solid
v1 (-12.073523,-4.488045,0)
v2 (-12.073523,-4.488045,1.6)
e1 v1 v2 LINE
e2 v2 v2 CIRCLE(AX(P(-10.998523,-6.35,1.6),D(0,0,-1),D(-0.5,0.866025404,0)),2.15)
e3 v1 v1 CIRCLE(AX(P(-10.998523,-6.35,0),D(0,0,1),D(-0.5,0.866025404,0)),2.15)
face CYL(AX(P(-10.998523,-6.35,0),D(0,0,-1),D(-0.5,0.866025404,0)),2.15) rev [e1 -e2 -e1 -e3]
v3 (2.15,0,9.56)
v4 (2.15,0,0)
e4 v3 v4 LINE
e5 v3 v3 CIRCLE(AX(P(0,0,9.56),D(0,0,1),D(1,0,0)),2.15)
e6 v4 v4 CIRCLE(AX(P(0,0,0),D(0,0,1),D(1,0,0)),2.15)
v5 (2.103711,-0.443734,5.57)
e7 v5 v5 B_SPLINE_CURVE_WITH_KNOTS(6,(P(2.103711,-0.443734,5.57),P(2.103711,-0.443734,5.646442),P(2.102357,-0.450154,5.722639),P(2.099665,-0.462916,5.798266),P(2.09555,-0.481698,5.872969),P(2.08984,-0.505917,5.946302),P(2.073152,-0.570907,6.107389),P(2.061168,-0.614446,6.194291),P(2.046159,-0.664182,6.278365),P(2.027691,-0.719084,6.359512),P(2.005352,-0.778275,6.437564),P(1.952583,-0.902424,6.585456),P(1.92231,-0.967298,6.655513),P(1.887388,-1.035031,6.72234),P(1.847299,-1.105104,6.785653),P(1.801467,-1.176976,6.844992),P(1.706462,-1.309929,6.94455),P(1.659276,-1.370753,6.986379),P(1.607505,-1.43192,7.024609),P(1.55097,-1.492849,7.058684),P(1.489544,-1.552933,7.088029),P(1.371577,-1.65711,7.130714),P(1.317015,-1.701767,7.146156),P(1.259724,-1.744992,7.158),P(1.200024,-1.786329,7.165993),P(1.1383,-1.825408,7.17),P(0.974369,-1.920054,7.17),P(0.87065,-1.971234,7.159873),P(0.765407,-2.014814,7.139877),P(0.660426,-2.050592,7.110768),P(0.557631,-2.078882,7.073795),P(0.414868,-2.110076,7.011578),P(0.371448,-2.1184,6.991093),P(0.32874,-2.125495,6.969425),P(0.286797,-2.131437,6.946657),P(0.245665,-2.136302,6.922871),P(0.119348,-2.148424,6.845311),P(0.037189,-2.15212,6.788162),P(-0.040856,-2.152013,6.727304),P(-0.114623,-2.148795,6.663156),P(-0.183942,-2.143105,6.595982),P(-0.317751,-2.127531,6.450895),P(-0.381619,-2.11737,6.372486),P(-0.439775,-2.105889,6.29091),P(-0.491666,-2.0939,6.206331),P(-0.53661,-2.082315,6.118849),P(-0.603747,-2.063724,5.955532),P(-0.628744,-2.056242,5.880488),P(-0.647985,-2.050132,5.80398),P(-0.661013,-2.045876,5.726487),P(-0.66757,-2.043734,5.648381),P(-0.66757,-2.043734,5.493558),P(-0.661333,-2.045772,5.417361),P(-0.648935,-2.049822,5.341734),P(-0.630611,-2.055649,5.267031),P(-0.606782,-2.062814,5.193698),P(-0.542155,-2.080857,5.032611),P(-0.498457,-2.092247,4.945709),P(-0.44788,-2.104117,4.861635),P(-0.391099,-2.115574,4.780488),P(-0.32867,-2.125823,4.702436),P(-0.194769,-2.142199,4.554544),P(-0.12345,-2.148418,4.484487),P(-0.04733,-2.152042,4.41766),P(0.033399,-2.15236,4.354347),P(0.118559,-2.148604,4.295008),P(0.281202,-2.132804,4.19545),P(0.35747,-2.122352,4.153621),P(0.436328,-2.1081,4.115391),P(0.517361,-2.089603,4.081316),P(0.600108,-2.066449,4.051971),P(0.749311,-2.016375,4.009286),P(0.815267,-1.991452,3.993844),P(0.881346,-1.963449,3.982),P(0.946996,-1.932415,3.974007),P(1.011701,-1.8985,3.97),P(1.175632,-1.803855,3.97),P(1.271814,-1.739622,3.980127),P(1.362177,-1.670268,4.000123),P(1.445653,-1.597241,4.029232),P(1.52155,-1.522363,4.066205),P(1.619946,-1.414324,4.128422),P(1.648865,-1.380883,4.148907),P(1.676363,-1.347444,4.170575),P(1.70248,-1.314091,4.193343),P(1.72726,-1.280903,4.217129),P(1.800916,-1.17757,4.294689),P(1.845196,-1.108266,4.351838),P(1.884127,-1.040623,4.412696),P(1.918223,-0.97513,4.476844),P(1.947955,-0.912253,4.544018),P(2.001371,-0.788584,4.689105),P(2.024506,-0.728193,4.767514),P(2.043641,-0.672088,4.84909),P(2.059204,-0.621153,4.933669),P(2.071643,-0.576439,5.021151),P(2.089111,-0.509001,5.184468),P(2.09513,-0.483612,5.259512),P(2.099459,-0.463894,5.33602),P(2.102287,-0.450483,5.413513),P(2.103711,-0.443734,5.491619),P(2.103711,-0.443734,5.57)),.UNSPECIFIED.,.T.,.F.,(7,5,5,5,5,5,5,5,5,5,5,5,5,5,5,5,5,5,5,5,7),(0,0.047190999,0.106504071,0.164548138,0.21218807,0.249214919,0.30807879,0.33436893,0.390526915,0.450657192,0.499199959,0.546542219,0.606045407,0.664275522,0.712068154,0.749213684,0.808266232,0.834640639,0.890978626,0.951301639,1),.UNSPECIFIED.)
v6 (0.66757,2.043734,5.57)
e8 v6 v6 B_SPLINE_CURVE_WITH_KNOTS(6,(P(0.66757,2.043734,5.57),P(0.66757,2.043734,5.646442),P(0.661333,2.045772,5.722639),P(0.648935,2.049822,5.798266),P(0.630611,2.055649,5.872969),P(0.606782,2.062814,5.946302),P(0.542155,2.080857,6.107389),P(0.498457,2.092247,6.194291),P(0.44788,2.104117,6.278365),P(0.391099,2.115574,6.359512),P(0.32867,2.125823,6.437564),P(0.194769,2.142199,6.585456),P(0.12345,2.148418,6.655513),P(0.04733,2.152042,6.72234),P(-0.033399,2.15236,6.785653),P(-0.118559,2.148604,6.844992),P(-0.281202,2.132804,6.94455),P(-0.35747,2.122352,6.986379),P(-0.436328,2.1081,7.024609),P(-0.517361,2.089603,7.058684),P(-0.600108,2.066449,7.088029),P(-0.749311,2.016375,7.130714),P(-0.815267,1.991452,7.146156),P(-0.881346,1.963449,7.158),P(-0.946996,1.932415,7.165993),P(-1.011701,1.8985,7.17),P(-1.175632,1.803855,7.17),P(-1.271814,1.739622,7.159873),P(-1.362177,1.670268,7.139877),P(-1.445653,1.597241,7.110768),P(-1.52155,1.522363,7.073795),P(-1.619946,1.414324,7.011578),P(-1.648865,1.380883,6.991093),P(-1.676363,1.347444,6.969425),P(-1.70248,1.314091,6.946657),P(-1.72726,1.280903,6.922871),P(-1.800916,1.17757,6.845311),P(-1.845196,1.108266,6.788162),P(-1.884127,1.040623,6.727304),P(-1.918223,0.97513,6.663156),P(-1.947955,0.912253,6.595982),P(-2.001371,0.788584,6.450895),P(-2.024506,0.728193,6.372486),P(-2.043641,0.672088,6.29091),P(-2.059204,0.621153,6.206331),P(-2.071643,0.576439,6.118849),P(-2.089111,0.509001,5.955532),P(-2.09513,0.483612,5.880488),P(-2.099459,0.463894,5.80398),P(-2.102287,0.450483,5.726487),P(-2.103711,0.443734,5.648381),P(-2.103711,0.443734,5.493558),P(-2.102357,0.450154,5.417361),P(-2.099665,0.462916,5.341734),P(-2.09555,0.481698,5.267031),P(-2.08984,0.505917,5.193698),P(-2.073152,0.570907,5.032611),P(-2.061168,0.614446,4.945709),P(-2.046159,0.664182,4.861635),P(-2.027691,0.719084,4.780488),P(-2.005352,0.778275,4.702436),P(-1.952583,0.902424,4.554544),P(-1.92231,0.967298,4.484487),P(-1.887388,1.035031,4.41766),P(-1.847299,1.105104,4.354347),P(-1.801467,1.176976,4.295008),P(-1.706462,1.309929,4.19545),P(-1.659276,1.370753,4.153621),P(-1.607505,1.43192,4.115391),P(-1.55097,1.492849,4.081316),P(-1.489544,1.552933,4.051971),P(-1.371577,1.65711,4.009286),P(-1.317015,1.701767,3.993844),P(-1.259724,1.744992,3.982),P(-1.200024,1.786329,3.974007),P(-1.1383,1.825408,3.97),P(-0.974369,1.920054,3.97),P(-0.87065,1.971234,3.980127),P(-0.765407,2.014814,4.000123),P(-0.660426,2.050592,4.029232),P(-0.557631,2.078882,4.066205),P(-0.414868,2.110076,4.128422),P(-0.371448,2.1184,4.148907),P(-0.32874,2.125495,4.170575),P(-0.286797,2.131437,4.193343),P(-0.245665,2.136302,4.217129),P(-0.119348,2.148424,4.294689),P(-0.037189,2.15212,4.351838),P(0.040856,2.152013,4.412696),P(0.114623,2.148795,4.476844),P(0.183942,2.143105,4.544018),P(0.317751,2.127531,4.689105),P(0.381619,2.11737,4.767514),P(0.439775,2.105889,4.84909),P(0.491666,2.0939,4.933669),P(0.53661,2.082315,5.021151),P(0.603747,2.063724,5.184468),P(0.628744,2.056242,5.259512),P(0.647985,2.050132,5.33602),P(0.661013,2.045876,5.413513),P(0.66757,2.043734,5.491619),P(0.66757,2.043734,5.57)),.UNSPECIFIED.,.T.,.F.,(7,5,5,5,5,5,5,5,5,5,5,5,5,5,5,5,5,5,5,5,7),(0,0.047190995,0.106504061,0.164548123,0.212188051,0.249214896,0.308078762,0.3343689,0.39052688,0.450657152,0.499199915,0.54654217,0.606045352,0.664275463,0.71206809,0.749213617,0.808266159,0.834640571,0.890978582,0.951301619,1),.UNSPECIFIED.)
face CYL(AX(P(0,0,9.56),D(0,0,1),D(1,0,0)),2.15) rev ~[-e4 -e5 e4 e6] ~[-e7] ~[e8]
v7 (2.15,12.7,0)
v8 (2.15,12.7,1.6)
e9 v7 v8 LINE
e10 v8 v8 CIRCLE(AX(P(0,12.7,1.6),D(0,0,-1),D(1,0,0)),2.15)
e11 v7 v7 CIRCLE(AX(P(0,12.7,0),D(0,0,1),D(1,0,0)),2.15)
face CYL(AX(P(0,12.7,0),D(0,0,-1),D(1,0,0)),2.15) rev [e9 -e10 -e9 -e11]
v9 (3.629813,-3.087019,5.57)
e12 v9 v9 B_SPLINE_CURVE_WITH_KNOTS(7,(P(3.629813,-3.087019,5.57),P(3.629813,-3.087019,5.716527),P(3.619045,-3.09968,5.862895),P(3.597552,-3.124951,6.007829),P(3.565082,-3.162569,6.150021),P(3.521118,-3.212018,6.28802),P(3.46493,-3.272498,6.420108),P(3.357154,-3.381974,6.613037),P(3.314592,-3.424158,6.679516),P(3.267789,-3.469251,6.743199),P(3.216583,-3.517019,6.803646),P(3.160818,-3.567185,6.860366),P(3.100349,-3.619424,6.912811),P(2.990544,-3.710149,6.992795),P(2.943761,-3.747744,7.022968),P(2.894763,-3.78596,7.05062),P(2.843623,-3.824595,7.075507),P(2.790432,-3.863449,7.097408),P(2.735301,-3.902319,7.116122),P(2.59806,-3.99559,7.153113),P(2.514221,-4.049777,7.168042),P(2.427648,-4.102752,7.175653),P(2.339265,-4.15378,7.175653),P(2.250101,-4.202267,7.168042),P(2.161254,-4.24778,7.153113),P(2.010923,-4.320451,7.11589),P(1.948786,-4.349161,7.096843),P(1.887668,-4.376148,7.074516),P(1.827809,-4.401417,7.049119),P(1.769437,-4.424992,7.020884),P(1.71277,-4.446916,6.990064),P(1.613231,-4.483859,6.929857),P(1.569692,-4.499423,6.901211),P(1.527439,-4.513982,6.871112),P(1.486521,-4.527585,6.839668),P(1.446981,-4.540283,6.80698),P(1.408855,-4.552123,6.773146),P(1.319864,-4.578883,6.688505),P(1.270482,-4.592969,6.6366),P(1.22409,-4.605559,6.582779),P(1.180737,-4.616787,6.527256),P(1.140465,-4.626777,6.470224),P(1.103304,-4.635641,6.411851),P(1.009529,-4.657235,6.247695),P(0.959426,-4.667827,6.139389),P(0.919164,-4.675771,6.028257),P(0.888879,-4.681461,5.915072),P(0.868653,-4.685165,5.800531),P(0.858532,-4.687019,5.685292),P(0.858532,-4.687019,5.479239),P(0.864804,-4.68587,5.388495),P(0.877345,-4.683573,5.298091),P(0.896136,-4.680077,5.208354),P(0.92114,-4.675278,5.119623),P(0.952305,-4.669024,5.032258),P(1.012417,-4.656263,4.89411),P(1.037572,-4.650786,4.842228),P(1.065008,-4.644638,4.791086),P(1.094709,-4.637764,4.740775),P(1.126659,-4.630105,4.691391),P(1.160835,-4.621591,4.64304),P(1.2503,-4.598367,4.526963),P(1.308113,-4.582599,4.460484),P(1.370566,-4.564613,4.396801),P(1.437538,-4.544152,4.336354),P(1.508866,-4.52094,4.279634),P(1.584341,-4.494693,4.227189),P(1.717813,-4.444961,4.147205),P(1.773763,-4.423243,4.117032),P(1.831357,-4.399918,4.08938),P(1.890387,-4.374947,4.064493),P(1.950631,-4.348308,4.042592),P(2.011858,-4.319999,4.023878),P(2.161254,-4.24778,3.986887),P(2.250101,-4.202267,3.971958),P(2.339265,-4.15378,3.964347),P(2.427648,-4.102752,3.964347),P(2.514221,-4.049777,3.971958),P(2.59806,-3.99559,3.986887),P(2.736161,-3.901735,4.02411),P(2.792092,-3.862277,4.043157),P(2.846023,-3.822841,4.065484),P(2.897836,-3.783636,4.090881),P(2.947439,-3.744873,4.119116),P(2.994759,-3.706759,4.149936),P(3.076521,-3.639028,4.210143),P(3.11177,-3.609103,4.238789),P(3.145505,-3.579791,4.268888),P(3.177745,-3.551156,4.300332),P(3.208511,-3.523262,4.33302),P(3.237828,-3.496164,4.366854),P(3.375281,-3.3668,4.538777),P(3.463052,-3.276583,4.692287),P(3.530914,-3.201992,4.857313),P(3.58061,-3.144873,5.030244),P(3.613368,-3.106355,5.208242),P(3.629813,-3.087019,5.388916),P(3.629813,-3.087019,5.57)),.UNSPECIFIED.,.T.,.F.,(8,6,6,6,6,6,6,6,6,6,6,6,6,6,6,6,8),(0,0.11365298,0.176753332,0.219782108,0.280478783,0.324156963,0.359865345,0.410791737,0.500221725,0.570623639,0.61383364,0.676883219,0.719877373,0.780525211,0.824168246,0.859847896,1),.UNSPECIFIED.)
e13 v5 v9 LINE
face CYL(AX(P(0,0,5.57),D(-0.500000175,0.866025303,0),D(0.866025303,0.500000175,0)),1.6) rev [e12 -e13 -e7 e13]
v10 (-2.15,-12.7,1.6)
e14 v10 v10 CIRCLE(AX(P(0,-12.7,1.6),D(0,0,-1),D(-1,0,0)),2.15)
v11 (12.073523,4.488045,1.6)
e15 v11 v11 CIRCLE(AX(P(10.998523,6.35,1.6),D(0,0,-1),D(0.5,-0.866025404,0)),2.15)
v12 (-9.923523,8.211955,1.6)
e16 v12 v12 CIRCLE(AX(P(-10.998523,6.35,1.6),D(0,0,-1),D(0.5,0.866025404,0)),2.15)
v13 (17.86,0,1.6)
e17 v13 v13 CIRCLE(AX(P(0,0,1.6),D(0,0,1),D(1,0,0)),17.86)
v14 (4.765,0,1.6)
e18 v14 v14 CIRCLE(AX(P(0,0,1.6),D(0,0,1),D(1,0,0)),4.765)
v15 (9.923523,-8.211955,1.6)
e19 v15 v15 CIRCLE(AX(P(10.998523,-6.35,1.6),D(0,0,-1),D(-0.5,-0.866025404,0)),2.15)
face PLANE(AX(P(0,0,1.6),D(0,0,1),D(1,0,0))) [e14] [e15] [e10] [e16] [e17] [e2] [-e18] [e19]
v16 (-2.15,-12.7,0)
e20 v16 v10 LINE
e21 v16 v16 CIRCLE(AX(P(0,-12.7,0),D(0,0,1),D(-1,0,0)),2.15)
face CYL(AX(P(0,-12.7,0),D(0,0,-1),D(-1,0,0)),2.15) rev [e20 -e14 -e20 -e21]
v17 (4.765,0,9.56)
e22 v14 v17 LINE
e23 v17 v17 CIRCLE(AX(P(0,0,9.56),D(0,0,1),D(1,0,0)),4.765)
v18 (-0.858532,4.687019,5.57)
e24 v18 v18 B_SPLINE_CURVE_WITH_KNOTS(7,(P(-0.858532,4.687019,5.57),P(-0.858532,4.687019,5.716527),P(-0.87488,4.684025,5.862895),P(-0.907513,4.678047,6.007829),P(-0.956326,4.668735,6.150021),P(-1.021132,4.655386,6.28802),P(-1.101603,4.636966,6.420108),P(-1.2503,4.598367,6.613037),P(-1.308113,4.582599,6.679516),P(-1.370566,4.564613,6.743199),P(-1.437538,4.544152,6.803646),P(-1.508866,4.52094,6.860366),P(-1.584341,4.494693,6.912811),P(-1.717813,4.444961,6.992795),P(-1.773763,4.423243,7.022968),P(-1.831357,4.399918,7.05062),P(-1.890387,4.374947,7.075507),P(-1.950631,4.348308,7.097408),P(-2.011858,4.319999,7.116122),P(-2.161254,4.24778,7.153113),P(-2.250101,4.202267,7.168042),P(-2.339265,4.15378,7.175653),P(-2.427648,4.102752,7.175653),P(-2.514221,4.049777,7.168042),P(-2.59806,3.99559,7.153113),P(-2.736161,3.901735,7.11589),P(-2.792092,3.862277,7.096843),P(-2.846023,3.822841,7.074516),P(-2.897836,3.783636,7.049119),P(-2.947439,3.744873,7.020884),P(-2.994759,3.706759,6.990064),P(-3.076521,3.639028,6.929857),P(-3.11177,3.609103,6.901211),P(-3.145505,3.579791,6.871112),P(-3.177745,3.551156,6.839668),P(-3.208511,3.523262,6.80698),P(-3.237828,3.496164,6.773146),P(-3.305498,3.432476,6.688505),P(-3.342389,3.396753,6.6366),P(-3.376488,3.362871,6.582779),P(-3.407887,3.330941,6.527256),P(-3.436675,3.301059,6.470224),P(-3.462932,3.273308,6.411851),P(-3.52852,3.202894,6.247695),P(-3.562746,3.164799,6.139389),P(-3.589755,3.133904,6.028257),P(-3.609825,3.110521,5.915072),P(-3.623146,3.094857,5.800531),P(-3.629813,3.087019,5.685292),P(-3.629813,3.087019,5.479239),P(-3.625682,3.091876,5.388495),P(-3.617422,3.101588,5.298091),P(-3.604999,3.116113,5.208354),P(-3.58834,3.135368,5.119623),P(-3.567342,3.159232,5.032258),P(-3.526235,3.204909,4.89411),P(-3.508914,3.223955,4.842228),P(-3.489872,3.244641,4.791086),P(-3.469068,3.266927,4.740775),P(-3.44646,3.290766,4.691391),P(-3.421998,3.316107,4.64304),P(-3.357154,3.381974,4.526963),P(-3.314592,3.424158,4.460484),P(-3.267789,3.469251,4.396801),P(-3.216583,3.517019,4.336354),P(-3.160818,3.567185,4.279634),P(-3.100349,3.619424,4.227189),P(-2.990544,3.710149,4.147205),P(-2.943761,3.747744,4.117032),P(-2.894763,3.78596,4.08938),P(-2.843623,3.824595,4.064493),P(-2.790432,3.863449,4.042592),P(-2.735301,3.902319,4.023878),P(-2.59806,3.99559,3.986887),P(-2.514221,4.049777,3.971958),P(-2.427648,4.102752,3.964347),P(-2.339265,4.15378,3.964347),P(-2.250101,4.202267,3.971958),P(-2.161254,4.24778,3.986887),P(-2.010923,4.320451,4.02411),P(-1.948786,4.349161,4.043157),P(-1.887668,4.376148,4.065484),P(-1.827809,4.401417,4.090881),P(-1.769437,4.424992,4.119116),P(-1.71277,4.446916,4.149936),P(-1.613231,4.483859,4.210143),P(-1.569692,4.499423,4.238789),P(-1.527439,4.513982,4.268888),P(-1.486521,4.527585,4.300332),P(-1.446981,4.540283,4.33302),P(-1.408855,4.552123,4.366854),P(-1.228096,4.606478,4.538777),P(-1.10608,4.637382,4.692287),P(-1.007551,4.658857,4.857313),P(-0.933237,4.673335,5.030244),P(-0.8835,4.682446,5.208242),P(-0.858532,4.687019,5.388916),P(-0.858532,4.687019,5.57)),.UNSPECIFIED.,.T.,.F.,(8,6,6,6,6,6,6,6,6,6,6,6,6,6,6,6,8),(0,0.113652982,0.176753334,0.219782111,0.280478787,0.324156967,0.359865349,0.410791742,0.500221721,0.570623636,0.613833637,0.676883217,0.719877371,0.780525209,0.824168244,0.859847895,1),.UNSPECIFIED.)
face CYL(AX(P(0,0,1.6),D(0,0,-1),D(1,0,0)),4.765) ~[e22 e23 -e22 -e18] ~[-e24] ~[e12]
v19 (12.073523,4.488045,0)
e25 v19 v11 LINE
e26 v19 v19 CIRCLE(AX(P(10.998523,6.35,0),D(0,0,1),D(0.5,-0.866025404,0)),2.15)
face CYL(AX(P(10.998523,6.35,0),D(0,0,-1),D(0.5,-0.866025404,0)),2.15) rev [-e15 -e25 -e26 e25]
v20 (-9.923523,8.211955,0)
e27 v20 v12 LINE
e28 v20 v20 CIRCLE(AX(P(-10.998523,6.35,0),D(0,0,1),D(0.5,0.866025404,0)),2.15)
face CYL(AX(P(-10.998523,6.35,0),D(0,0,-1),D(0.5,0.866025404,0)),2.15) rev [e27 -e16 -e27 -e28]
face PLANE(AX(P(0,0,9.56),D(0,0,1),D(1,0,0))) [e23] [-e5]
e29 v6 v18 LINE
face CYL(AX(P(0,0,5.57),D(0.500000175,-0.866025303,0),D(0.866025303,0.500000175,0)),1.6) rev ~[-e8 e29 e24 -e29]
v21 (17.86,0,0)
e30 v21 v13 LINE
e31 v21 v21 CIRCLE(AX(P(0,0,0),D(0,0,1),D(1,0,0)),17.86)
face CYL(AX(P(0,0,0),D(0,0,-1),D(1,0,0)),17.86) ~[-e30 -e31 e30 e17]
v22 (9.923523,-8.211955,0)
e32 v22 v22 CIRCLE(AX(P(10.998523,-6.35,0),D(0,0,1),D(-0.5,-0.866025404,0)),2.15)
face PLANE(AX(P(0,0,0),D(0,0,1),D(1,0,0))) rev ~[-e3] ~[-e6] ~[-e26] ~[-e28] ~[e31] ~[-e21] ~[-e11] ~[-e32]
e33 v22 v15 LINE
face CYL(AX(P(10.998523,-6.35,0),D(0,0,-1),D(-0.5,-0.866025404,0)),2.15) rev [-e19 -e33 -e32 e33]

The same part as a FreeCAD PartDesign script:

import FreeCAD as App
import Part
import Sketcher
from FreeCAD import Vector

doc = App.newDocument("Part")
body = doc.addObject("PartDesign::Body", "Body")

sketch1 = doc.addObject("Sketcher::SketchObject", "Sketch")
body.addObject(sketch1)
sketch1.AttachmentSupport = (doc.XY_Plane, [""])
sketch1.MapMode = "FlatFace"
sketch1.addGeometry(Part.Circle(Vector(0, 0, 0), Vector(0, 0, 1), 18), False)
sketch1.addConstraint(Sketcher.Constraint("Coincident", 0, 3, -1, 1))
sketch1.addConstraint(Sketcher.Constraint("Diameter", 0, 35.72))
pad1 = doc.addObject("PartDesign::Pad", "Pad")
body.addObject(pad1)
pad1.Profile = sketch1
pad1.Length = 1.6

sketch2 = doc.addObject("Sketcher::SketchObject", "Sketch001")
body.addObject(sketch2)
sketch2.AttachmentSupport = (doc.XY_Plane, [""])
sketch2.MapMode = "FlatFace"
sketch2.AttachmentOffset = App.Placement(Vector(0, 0, 1.6), App.Rotation())
sketch2.addGeometry(Part.Circle(Vector(0, 0, 0), Vector(0, 0, 1), 4.8), False)
sketch2.addConstraint(Sketcher.Constraint("Coincident", 0, 3, -1, 1))
sketch2.addConstraint(Sketcher.Constraint("Diameter", 0, 9.53))
pad2 = doc.addObject("PartDesign::Pad", "Pad001")
body.addObject(pad2)
pad2.Profile = sketch2
pad2.Length = 7.96

sketch3 = doc.addObject("Sketcher::SketchObject", "Sketch002")
body.addObject(sketch3)
sketch3.AttachmentSupport = (doc.XY_Plane, [""])
sketch3.MapMode = "FlatFace"
sketch3.AttachmentOffset = App.Placement(Vector(0, 0, 9.56), App.Rotation())
sketch3.addGeometry(Part.Circle(Vector(0, 0, 0), Vector(0, 0, 1), 2.1), False)
sketch3.addConstraint(Sketcher.Constraint("Coincident", 0, 3, -1, 1))
sketch3.addConstraint(Sketcher.Constraint("Diameter", 0, 4.3))
pocket1 = doc.addObject("PartDesign::Pocket", "Pocket")
body.addObject(pocket1)
pocket1.Profile = sketch3
pocket1.Type = "ThroughAll"

sketch4 = doc.addObject("Sketcher::SketchObject", "Sketch003")
body.addObject(sketch4)
sketch4.Placement = App.Placement(Vector(0, 0, 0), App.Rotation(Vector(0.866025303, 0.500000175, 0), Vector(0, 0, 1), Vector(0.500000175, -0.866025303, 0), "ZXY"))
sketch4.addGeometry(Part.Circle(Vector(0, 5.6, 0), Vector(0, 0, 1), 1.6), False)
sketch4.addConstraint(Sketcher.Constraint("PointOnObject", 0, 3, -2))
sketch4.addConstraint(Sketcher.Constraint("Diameter", 0, 3.2))
sketch4.addConstraint(Sketcher.Constraint("DistanceY", -1, 1, 0, 3, 5.57))
pocket2 = doc.addObject("PartDesign::Pocket", "Pocket001")
body.addObject(pocket2)
pocket2.Profile = sketch4
pocket2.Type = "ThroughAll"
pocket2.Midplane = True

sketch5 = doc.addObject("Sketcher::SketchObject", "Sketch004")
body.addObject(sketch5)
sketch5.AttachmentSupport = (doc.XY_Plane, [""])
sketch5.MapMode = "FlatFace"
sketch5.addGeometry(Part.Circle(Vector(0, 12.7, 0), Vector(0, 0, 1), 2.1), False)
sketch5.addConstraint(Sketcher.Constraint("PointOnObject", 0, 3, -2))
sketch5.addConstraint(Sketcher.Constraint("Diameter", 0, 4.3))
sketch5.addConstraint(Sketcher.Constraint("DistanceY", -1, 1, 0, 3, 12.7))
pocket3 = doc.addObject("PartDesign::Pocket", "Pocket002")
body.addObject(pocket3)
pocket3.Profile = sketch5
pocket3.Type = "ThroughAll"
pocket3.Reversed = True
doc.recompute()

polarpattern = doc.addObject("PartDesign::PolarPattern", "PolarPattern")
body.addObject(polarpattern)
polarpattern.Originals = [pocket3]
polarpattern.Axis = (doc.Z_Axis, [""])
polarpattern.Angle = 360
polarpattern.Occurrences = 6
body.Tip = polarpattern

doc.recompute()
